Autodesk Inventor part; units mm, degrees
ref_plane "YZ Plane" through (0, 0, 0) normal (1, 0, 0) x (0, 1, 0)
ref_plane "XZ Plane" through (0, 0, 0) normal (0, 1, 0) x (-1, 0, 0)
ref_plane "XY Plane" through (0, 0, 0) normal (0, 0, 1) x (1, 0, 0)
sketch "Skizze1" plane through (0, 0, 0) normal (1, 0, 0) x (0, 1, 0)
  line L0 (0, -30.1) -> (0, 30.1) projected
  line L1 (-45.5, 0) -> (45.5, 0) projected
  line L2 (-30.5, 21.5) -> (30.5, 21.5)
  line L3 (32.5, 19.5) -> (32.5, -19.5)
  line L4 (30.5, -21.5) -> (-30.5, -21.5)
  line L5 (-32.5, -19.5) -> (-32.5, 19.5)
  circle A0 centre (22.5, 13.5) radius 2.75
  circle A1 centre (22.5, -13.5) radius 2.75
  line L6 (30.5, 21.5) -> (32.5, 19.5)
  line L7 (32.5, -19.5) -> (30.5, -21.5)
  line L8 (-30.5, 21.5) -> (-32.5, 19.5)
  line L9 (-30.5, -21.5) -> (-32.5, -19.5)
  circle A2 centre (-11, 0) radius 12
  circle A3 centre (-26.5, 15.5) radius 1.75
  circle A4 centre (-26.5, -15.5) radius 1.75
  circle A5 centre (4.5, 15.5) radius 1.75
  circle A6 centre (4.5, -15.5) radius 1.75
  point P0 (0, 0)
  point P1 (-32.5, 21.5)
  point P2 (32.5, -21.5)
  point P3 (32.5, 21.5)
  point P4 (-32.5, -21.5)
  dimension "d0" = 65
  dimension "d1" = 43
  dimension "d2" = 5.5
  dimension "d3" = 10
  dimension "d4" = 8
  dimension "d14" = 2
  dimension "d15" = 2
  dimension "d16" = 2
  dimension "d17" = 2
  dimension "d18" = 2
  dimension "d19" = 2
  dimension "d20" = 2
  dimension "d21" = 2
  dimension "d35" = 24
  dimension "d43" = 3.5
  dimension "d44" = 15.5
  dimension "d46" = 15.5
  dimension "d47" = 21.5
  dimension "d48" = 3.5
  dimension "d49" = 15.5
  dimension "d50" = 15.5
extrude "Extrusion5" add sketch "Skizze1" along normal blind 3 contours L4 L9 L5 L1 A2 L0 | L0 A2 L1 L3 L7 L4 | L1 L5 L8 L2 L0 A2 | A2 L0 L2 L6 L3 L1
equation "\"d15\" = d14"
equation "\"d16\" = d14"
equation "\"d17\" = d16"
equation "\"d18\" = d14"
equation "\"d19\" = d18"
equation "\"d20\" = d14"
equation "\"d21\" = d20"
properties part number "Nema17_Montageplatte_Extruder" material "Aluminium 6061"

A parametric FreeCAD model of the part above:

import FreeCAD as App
import Part
import Sketcher
from FreeCAD import Vector
Q = App.Units.Quantity


def add_polygon(sketch, points):
    """Adds a closed chain of lines whose ends are joined by coincident constraints."""
    first, n = sketch.GeometryCount, len(points)
    for a, b in zip(points, points[1:] + points[:1]):
        sketch.addGeometry(Part.LineSegment(App.Vector(*a, 0), App.Vector(*b, 0)), False)
    for i in range(n):
        sketch.addConstraint(Sketcher.Constraint("Coincident", first + i, 2, first + (i + 1) % n, 1))

doc = App.newDocument("Part")
body = doc.addObject("PartDesign::Body", "Body")

# Sketch on YZ plane
sketch1 = body.newObject("Sketcher::SketchObject", "Sketch")
sketch1.AttachmentSupport = (doc.getObject("YZ_Plane"), [""])
sketch1.MapMode = "FlatFace"
add_polygon(sketch1, [(-30.5, -21.5), (30.5, -21.5), (32.5, -19.5), (32.5, 19.5), (30.5, 21.5), (-30.5, 21.5), (-32.5, 19.5), (-32.5, -19.5)])  # lines 0-7
sketch1.addGeometry(Part.Circle(Vector(-11, 0, 0), Vector(0, 0, 1), 12), False)  # 8
sketch1.addGeometry(Part.Circle(Vector(-26.5, -15.5, 0), Vector(0, 0, 1), 1.75), False)  # 9
sketch1.addGeometry(Part.Circle(Vector(-26.5, 15.5, 0), Vector(0, 0, 1), 1.75), False)  # 10
sketch1.addGeometry(Part.Circle(Vector(22.5, -13.5, 0), Vector(0, 0, 1), 2.75), False)  # 11
sketch1.addGeometry(Part.Circle(Vector(4.5, -15.5, 0), Vector(0, 0, 1), 1.75), False)  # 12
sketch1.addGeometry(Part.Circle(Vector(22.5, 13.5, 0), Vector(0, 0, 1), 2.75), False)  # 13
sketch1.addGeometry(Part.Circle(Vector(4.5, 15.5, 0), Vector(0, 0, 1), 1.75), False)  # 14
sketch1.addConstraint(Sketcher.Constraint("Horizontal", 0))
sketch1.addConstraint(Sketcher.Constraint("Vertical", 2))
sketch1.addConstraint(Sketcher.Constraint("Horizontal", 4))
sketch1.addConstraint(Sketcher.Constraint("Vertical", 6))
sketch1.addConstraint(Sketcher.Constraint("Equal", 9, 10))
sketch1.addConstraint(Sketcher.Constraint("Equal", 10, 12))
sketch1.addConstraint(Sketcher.Constraint("Equal", 11, 13))
sketch1.addConstraint(Sketcher.Constraint("Equal", 12, 14))
sketch1.addConstraint(Sketcher.Constraint("Symmetric", 0, 2, 4, 2, -1, 1))
sketch1.addConstraint(Sketcher.Constraint("Symmetric", 1, 2, 5, 2, -1, 1))
sketch1.addConstraint(Sketcher.Constraint("Symmetric", 9, 3, 10, 3, -1))
sketch1.addConstraint(Sketcher.Constraint("Symmetric", 11, 3, 13, 3, -1))
sketch1.addConstraint(Sketcher.Constraint("Symmetric", 12, 3, 14, 3, -1))
sketch1.addConstraint(Sketcher.Constraint("PointOnObject", 8, 3, -1))
sketch1.addConstraint(Sketcher.Constraint("Perpendicular", 1, 3))
sketch1.addConstraint(Sketcher.Constraint("Perpendicular", 5, 7))
sketch1.addConstraint(Sketcher.Constraint("Horizontal", 9, 3, 12, 3))
sketch1.addConstraint(Sketcher.Constraint("Horizontal", 2, 2, 5, 2))
sketch1.addConstraint(Sketcher.Constraint("Horizontal", 1, 2, 6, 2))
sketch1.addConstraint(Sketcher.Constraint("Vertical", 0, 2, 3, 2))
sketch1.addConstraint(Sketcher.Constraint("Diameter", 8, Q("24 mm")))
sketch1.addConstraint(Sketcher.Constraint("Diameter", 9, Q("3.5 mm")))
sketch1.addConstraint(Sketcher.Constraint("Diameter", 11, Q("5.5 mm")))
sketch1.addConstraint(Sketcher.Constraint("DistanceY", 9, 3, 11, 3, Q("2 mm")))
sketch1.addConstraint(Sketcher.Constraint("DistanceX", 11, 3, 0, 2, Q("8 mm")))
sketch1.addConstraint(Sketcher.Constraint("DistanceY", 0, 2, 11, 3, Q("8 mm")))
sketch1.addConstraint(Sketcher.Constraint("DistanceX", 0, 2, 1, 2, Q("2 mm")))
sketch1.addConstraint(Sketcher.Constraint("DistanceY", 9, 3, -1, 1, Q("15.5 mm")))
sketch1.addConstraint(Sketcher.Constraint("DistanceX", 9, 3, 8, 3, Q("15.5 mm")))
sketch1.addConstraint(Sketcher.Constraint("DistanceX", 8, 3, 12, 3, Q("15.5 mm")))
sketch1.addConstraint(Sketcher.Constraint("DistanceX", 5, 2, 8, 3, Q("21.5 mm")))
sketch1.addConstraint(Sketcher.Constraint("DistanceX", 0, 1, 0, 2, Q("61 mm")))
pad1 = body.newObject("PartDesign::Pad", "Pad")
pad1.Profile = sketch1
pad1.Length = 3

doc.recompute()
